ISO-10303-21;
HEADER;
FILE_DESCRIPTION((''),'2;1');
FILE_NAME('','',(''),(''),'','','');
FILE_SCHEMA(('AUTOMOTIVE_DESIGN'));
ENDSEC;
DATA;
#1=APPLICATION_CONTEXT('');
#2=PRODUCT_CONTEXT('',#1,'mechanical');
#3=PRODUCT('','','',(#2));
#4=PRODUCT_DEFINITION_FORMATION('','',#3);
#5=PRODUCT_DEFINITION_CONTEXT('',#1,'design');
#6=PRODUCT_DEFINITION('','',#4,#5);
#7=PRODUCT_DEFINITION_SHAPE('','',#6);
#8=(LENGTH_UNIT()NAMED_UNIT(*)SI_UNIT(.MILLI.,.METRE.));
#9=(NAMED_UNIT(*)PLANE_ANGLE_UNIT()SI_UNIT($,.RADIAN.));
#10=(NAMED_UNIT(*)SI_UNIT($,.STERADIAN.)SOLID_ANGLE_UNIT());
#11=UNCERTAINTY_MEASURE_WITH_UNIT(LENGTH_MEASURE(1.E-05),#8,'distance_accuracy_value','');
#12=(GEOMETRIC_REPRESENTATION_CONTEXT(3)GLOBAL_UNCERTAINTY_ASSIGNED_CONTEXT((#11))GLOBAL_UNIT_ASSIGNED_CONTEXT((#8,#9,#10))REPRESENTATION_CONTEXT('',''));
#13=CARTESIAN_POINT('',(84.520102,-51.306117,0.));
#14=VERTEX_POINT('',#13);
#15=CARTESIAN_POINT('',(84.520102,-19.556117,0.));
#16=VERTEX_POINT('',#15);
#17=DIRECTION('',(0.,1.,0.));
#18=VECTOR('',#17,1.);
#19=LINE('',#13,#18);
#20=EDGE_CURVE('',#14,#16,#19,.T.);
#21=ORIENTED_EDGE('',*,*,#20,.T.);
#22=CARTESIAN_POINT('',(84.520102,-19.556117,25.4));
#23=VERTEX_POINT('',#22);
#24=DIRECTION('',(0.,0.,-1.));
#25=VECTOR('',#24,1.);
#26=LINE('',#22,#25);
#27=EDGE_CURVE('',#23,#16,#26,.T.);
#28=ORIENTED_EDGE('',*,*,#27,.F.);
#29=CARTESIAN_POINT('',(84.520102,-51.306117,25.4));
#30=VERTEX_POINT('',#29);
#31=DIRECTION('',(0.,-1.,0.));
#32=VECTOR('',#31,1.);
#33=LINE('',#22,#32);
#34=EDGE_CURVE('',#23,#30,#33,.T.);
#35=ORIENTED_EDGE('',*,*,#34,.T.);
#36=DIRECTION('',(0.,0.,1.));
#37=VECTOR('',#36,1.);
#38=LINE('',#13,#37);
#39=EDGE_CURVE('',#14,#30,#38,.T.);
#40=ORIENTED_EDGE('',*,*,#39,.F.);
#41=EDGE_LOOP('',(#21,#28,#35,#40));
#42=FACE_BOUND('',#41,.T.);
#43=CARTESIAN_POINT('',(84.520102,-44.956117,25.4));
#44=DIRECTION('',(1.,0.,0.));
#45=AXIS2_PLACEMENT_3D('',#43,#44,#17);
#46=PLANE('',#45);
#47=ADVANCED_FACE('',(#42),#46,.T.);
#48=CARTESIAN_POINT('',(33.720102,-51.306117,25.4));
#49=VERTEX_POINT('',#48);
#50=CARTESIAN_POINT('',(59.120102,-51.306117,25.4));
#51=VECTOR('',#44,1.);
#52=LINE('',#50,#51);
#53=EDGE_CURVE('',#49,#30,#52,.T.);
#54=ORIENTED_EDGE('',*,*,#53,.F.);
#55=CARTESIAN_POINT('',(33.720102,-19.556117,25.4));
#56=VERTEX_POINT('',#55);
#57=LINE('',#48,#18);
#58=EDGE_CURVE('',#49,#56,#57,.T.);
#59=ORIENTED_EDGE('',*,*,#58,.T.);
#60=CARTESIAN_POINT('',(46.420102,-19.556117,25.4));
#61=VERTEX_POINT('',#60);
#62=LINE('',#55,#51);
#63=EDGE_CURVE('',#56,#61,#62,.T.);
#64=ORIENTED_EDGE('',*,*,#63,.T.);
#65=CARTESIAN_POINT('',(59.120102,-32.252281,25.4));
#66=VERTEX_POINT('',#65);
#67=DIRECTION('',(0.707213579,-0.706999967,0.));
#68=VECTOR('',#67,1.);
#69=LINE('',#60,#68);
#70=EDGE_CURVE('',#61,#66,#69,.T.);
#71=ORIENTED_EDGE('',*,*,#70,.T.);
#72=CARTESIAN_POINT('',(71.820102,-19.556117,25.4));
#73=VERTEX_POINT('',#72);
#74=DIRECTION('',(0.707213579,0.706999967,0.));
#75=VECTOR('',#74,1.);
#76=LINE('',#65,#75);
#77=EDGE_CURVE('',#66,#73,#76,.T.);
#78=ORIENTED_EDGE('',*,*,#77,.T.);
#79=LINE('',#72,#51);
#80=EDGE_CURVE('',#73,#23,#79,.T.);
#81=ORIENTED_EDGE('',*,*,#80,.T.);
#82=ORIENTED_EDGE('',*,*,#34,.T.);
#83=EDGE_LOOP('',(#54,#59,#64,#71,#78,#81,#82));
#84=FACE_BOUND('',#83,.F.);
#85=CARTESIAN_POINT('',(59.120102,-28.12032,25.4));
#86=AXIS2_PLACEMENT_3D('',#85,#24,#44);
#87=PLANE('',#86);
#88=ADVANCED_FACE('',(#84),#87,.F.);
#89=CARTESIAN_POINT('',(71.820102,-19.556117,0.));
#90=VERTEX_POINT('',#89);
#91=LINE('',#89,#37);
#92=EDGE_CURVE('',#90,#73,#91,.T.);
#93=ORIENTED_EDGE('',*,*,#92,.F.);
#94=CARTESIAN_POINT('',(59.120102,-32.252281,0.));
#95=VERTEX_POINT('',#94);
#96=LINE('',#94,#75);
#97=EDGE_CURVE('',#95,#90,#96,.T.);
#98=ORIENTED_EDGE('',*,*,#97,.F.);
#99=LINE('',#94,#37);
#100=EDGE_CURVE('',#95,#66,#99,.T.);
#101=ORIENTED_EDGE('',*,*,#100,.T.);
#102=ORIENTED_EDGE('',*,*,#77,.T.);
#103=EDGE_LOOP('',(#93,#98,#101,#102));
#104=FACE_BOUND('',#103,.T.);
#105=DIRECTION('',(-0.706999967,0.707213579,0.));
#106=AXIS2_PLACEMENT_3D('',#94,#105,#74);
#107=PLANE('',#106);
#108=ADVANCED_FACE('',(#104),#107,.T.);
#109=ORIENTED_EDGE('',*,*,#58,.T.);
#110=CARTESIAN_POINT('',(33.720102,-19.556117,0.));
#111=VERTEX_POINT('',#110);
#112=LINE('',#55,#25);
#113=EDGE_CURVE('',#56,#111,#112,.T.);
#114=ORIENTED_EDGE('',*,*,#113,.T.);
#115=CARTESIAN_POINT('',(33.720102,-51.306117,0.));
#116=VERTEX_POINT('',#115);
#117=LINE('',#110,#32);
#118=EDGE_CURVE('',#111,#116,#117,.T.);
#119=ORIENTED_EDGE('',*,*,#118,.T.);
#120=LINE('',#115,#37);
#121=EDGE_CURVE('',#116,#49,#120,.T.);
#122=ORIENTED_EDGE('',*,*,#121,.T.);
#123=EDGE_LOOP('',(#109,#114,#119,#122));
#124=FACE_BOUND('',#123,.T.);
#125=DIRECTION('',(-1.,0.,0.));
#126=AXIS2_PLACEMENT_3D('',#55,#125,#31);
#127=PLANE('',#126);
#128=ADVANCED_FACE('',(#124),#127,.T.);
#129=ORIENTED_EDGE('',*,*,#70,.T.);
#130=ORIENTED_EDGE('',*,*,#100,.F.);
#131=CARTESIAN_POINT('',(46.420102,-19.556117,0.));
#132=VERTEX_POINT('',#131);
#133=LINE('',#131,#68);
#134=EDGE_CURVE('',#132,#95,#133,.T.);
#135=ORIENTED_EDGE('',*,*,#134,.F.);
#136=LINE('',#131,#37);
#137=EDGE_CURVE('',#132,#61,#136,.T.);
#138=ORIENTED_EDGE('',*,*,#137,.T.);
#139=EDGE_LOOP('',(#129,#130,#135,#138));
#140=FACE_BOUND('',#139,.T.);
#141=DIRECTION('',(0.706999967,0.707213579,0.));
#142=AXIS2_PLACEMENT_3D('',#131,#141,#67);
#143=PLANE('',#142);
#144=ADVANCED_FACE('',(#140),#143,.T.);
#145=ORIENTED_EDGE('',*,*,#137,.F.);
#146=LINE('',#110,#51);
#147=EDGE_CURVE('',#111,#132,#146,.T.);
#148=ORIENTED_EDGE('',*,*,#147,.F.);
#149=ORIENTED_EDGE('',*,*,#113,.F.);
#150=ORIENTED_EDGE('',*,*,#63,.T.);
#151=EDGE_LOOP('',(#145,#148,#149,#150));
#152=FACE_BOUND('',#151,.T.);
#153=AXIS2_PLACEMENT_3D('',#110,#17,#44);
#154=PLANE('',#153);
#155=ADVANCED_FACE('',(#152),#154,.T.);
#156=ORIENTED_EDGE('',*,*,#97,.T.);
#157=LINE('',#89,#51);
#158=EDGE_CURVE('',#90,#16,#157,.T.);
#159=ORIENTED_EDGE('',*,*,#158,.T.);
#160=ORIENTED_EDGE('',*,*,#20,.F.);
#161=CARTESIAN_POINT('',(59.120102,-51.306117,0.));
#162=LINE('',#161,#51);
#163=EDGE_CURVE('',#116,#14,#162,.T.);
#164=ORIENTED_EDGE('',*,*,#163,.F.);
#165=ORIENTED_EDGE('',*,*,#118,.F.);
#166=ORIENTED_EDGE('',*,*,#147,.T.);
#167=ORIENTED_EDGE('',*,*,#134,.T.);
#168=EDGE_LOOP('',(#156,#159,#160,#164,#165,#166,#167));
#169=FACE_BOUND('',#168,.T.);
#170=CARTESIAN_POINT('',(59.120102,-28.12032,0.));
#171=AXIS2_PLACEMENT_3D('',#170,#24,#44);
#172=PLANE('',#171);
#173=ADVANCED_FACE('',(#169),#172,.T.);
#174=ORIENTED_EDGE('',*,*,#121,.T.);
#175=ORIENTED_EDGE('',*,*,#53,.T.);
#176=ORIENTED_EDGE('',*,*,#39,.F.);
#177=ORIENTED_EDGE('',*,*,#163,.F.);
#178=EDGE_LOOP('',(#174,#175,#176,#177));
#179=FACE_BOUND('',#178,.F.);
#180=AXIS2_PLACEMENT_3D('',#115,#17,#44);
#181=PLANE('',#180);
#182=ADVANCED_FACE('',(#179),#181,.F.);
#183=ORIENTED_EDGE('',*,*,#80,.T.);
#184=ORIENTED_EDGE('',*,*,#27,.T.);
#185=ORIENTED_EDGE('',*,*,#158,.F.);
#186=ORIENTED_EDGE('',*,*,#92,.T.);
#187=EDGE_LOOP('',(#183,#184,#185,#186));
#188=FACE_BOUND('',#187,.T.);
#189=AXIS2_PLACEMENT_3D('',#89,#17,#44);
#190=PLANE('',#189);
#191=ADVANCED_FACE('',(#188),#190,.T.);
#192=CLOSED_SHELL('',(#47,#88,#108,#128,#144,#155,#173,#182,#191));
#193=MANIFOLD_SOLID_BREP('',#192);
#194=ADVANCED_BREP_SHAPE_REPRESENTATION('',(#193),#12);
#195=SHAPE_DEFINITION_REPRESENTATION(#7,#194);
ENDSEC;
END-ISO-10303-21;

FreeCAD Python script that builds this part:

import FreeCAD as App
import Part
import Sketcher
Q = App.Units.Quantity


def add_polygon(sketch, points):
    """Adds a closed chain of lines whose ends are joined by coincident constraints."""
    first, n = sketch.GeometryCount, len(points)
    for a, b in zip(points, points[1:] + points[:1]):
        sketch.addGeometry(Part.LineSegment(App.Vector(*a, 0), App.Vector(*b, 0)), False)
    for i in range(n):
        sketch.addConstraint(Sketcher.Constraint("Coincident", first + i, 2, first + (i + 1) % n, 1))

doc = App.newDocument("Part")
body = doc.addObject("PartDesign::Body", "Body")

sketch1 = body.newObject("Sketcher::SketchObject", "Sketch")
sketch1.AttachmentSupport = (doc.getObject("XY_Plane"), [""])
sketch1.MapMode = "FlatFace"
add_polygon(sketch1, [(33.720102, -44.956117), (33.720102, -51.306117), (84.520102, -51.306117), (84.520102, -44.956117)])
sketch1.addConstraint([
    Sketcher.Constraint("Vertical", 0),
    Sketcher.Constraint("Horizontal", 1),
    Sketcher.Constraint("Vertical", 2),
    Sketcher.Constraint("Horizontal", 3),
    Sketcher.Constraint("DistanceX", 1, 1, 1, 2, Q("2 in")),
    Sketcher.Constraint("DistanceY", 0, 2, 0, 1, Q("0.25 in")),
    Sketcher.Constraint("DistanceX", -1, 1, 0, 2, Q("33.720102 mm")),
    Sketcher.Constraint("DistanceY", 0, 2, -1, 1, Q("51.306117 mm")),
])
pad1 = body.newObject("PartDesign::Pad", "Pad")
pad1.Profile = sketch1
pad1.Length = Q("1 in")

sketch2 = body.newObject("Sketcher::SketchObject", "Sketch001")
sketch2.AttachmentSupport = (doc.getObject("XY_Plane"), [""])
sketch2.MapMode = "FlatFace"
sketch2.AttachmentOffset = App.Placement(App.Vector(0, 0, 1 * 25.4), App.Rotation())
add_polygon(sketch2, [(59.120102, -44.956117), (84.520102, -44.956117), (84.520102, -19.556117)])
sketch2.addConstraint([
    Sketcher.Constraint("Horizontal", 0),
    Sketcher.Constraint("Vertical", 1),
    Sketcher.Constraint("Equal", 0, 1),
    Sketcher.Constraint("DistanceX", 0, 1, 0, 2, Q("1 in")),
    Sketcher.Constraint("DistanceX", -1, 1, 0, 2, Q("84.520102 mm")),
    Sketcher.Constraint("DistanceY", 0, 2, -1, 1, Q("44.956117 mm")),
])
pad2 = body.newObject("PartDesign::Pad", "Pad001")
pad2.Profile = sketch2
pad2.Length = Q("1 in")
pad2.Reversed = True

sketch3 = body.newObject("Sketcher::SketchObject", "Sketch002")
sketch3.AttachmentSupport = (doc.getObject("XY_Plane"), [""])
sketch3.MapMode = "FlatFace"
sketch3.AttachmentOffset = App.Placement(App.Vector(0, 0, 1 * 25.4), App.Rotation())
add_polygon(sketch3, [(33.720102, -19.556117), (33.720102, -44.956117), (59.120102, -44.956117)])
sketch3.addConstraint([
    Sketcher.Constraint("Vertical", 0),
    Sketcher.Constraint("Horizontal", 1),
    Sketcher.Constraint("Equal", 1, 0),
    Sketcher.Constraint("DistanceX", 1, 1, 1, 2, Q("1 in")),
    Sketcher.Constraint("DistanceX", -1, 1, 0, 2, Q("33.720102 mm")),
    Sketcher.Constraint("DistanceY", 0, 2, -1, 1, Q("44.956117 mm")),
])
pad3 = body.newObject("PartDesign::Pad", "Pad002")
pad3.Profile = sketch3
pad3.Length = Q("1 in")
pad3.Reversed = True

sketch4 = body.newObject("Sketcher::SketchObject", "Sketch003")
sketch4.AttachmentSupport = (doc.getObject("XY_Plane"), [""])
sketch4.MapMode = "FlatFace"
add_polygon(sketch4, [(71.820102, -19.556117), (84.520102, -19.556117), (59.120102, -44.956117), (33.720102, -19.556117), (46.420102, -19.556117), (59.120102, -32.252281)])
sketch4.addConstraint([
    Sketcher.Constraint("Horizontal", 0),
    Sketcher.Constraint("Horizontal", 3),
    Sketcher.Constraint("Perpendicular", 1, 2),
    Sketcher.Constraint("Horizontal", 0, 2, 2, 2),
    Sketcher.Constraint("Vertical", 1, 2, 4, 2),
    Sketcher.Constraint("Equal", 0, 3),
    Sketcher.Constraint("Equal", 1, 2),
    Sketcher.Constraint("DistanceX", 0, 1, 0, 2, Q("0.5 in")),
    Sketcher.Constraint("DistanceX", 1, 2, 0, 2, Q("1 in")),
    Sketcher.Constraint("Distance", 4, Q("0.707 in")),
    Sketcher.Constraint("DistanceX", -1, 1, 0, 2, Q("84.520102 mm")),
    Sketcher.Constraint("DistanceY", 4, 2, -1, 1, Q("32.252281 mm")),
])
pad4 = body.newObject("PartDesign::Pad", "Pad003")
pad4.Profile = sketch4
pad4.Length = Q("1 in")

doc.recompute()
